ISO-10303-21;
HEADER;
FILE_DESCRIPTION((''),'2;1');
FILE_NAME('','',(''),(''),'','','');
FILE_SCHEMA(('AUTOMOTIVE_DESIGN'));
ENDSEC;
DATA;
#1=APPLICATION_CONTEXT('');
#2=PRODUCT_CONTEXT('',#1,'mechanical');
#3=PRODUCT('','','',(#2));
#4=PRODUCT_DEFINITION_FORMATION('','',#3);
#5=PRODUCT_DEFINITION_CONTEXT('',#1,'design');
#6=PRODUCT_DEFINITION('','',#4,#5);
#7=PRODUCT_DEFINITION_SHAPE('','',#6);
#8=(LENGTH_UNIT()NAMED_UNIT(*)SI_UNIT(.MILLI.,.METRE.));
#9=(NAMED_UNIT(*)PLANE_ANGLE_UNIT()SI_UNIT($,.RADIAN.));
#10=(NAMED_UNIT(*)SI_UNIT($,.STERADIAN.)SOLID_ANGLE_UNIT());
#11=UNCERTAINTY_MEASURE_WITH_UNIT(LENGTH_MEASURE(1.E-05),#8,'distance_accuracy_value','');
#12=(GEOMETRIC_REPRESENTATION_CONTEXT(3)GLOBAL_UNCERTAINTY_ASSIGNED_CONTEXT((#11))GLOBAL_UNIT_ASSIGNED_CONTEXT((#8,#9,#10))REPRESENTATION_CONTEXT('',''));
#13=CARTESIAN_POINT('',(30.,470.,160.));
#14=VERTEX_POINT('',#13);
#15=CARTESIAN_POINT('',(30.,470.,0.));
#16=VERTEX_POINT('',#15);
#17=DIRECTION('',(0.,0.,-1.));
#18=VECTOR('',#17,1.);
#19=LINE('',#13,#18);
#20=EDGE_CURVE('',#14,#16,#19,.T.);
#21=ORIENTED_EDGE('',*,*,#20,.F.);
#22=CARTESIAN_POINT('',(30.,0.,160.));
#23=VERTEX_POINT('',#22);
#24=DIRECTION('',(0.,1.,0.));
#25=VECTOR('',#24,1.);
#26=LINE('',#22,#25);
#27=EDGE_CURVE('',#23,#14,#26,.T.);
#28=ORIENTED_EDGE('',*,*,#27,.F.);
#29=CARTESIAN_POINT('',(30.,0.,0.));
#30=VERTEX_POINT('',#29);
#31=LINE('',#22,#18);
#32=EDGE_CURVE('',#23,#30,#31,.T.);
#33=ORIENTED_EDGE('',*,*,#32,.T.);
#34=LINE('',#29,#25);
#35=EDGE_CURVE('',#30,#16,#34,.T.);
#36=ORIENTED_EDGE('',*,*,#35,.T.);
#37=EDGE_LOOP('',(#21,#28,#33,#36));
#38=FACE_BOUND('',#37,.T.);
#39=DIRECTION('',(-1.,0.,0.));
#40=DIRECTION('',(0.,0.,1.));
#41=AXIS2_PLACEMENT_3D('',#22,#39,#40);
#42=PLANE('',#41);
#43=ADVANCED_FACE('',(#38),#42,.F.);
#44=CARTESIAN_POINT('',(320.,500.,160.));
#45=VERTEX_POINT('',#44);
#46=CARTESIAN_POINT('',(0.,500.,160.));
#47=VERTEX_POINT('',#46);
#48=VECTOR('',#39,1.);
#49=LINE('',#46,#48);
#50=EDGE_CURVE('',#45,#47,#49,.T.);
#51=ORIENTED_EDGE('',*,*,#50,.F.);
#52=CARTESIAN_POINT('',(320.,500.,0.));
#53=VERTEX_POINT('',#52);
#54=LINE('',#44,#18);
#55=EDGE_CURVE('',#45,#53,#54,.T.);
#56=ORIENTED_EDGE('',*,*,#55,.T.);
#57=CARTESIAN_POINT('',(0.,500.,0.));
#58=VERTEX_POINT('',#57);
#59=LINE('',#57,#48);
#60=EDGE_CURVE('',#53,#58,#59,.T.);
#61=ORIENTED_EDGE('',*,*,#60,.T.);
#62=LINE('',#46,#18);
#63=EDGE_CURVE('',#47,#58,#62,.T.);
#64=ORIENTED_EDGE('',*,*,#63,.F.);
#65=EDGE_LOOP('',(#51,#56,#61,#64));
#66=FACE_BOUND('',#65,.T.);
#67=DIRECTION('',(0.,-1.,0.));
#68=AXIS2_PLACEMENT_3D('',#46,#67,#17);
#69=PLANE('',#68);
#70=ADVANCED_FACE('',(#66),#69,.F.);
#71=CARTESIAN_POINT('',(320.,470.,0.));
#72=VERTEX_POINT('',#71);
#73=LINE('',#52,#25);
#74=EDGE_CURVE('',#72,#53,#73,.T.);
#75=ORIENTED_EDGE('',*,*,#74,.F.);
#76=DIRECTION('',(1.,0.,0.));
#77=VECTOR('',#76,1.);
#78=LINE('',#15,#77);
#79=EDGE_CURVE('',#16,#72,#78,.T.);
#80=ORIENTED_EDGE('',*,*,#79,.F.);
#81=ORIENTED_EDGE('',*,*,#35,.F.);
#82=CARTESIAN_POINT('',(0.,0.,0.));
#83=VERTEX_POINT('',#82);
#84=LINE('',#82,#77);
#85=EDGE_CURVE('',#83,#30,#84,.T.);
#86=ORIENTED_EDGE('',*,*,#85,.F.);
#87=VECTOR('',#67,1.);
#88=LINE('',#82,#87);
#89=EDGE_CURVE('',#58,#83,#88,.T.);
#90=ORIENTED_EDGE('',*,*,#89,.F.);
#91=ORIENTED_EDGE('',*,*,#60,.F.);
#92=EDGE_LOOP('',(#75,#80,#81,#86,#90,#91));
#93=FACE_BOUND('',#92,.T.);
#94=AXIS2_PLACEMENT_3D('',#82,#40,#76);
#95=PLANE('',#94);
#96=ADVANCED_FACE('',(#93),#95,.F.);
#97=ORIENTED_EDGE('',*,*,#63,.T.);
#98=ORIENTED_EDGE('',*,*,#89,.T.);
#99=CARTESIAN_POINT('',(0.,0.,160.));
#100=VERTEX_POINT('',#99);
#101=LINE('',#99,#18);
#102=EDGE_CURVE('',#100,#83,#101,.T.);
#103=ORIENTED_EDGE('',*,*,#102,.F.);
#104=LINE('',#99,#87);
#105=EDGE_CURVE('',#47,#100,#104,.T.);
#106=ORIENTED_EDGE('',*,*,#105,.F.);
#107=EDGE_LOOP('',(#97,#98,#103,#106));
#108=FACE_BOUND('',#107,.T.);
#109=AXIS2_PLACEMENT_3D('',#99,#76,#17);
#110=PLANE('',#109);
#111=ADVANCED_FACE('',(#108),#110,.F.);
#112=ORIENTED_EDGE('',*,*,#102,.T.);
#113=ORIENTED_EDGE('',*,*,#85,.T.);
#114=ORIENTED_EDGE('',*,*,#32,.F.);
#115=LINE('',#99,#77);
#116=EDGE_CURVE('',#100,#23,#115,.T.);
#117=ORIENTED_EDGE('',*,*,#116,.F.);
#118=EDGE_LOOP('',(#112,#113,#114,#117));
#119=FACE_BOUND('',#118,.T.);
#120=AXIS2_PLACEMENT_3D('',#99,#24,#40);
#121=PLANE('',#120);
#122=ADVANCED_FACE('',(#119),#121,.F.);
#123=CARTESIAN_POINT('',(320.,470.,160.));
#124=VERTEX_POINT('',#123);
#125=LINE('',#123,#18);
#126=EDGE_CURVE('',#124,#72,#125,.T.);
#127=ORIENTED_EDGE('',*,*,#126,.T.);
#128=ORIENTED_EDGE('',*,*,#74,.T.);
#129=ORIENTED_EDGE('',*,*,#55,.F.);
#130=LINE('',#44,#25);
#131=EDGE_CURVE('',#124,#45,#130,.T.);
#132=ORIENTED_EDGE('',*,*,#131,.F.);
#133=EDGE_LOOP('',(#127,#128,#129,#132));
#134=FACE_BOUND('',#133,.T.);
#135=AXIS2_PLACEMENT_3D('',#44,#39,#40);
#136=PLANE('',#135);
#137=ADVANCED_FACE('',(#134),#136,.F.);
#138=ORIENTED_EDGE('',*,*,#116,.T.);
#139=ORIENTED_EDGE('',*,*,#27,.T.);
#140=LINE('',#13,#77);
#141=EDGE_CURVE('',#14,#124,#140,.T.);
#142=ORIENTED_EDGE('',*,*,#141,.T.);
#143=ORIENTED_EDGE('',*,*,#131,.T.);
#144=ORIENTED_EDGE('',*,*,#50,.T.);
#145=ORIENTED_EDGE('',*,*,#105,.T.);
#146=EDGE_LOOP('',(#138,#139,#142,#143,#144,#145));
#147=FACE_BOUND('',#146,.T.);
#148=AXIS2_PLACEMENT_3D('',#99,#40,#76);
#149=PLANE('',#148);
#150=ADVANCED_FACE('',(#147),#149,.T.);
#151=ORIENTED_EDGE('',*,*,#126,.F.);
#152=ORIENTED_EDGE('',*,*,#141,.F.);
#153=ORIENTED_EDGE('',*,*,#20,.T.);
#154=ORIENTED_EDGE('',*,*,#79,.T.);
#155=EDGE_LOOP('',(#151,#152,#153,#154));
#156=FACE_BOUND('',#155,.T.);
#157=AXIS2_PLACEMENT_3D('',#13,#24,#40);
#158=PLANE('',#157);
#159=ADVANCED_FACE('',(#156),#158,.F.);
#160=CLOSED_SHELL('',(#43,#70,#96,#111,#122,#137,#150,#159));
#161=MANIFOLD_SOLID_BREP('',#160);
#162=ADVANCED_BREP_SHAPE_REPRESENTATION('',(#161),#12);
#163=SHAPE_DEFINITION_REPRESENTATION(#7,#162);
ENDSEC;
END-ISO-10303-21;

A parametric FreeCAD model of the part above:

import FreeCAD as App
import Part
import Sketcher
from FreeCAD import Vector
Q = App.Units.Quantity


def add_polygon(sketch, points):
    """Adds a closed chain of lines whose ends are joined by coincident constraints."""
    first, n = sketch.GeometryCount, len(points)
    for a, b in zip(points, points[1:] + points[:1]):
        sketch.addGeometry(Part.LineSegment(App.Vector(*a, 0), App.Vector(*b, 0)), False)
    for i in range(n):
        sketch.addConstraint(Sketcher.Constraint("Coincident", first + i, 2, first + (i + 1) % n, 1))

doc = App.newDocument("Part")
params = doc.addObject("Spreadsheet::Sheet", "Params")
for row, (alias, value) in enumerate([
    ("sketch1_width", "30 mm"),
    ("sketch1_width2", "290 mm"),
    ("sketch1_height", "500 mm"),
    ("pad1_length", "160 mm"),
], start=1):
    params.set(f"A{row}", alias)
    params.set(f"B{row}", "=" + value)
    params.setAlias(f"B{row}", alias)

body = doc.addObject("PartDesign::Body", "Body")

# Sketch on XY plane
sketch1 = doc.addObject("Sketcher::SketchObject", "Sketch")
body.addObject(sketch1)
sketch1.AttachmentSupport = (doc.XY_Plane, [""])
sketch1.MapMode = "FlatFace"
add_polygon(sketch1, [(0, 500), (0, 0), (30, 0), (30, 470), (320, 470), (320, 500)])  # lines 0-5
sketch1.addConstraint([
    Sketcher.Constraint("Vertical", 0),
    Sketcher.Constraint("Horizontal", 1),
    Sketcher.Constraint("Vertical", 2),
    Sketcher.Constraint("Horizontal", 3),
    Sketcher.Constraint("Vertical", 4),
    Sketcher.Constraint("Horizontal", 5),
    Sketcher.Constraint("Coincident", 0, 2, -1, 1),
    Sketcher.Constraint("Equal", 1, 4),
    Sketcher.Constraint("DistanceX", 1, 1, 1, 2, Q("30 mm")),
    Sketcher.Constraint("DistanceX", 3, 1, 3, 2, Q("290 mm")),
    Sketcher.Constraint("DistanceY", 0, 2, 0, 1, Q("500 mm")),
])
sketch1.setExpression("Constraints[14]", "Params.sketch1_width")
sketch1.setExpression("Constraints[15]", "Params.sketch1_width2")
sketch1.setExpression("Constraints[16]", "Params.sketch1_height")
pad1 = doc.addObject("PartDesign::Pad", "Pad")
body.addObject(pad1)
pad1.Profile = sketch1
pad1.setExpression("Length", "Params.pad1_length")

doc.recompute()
